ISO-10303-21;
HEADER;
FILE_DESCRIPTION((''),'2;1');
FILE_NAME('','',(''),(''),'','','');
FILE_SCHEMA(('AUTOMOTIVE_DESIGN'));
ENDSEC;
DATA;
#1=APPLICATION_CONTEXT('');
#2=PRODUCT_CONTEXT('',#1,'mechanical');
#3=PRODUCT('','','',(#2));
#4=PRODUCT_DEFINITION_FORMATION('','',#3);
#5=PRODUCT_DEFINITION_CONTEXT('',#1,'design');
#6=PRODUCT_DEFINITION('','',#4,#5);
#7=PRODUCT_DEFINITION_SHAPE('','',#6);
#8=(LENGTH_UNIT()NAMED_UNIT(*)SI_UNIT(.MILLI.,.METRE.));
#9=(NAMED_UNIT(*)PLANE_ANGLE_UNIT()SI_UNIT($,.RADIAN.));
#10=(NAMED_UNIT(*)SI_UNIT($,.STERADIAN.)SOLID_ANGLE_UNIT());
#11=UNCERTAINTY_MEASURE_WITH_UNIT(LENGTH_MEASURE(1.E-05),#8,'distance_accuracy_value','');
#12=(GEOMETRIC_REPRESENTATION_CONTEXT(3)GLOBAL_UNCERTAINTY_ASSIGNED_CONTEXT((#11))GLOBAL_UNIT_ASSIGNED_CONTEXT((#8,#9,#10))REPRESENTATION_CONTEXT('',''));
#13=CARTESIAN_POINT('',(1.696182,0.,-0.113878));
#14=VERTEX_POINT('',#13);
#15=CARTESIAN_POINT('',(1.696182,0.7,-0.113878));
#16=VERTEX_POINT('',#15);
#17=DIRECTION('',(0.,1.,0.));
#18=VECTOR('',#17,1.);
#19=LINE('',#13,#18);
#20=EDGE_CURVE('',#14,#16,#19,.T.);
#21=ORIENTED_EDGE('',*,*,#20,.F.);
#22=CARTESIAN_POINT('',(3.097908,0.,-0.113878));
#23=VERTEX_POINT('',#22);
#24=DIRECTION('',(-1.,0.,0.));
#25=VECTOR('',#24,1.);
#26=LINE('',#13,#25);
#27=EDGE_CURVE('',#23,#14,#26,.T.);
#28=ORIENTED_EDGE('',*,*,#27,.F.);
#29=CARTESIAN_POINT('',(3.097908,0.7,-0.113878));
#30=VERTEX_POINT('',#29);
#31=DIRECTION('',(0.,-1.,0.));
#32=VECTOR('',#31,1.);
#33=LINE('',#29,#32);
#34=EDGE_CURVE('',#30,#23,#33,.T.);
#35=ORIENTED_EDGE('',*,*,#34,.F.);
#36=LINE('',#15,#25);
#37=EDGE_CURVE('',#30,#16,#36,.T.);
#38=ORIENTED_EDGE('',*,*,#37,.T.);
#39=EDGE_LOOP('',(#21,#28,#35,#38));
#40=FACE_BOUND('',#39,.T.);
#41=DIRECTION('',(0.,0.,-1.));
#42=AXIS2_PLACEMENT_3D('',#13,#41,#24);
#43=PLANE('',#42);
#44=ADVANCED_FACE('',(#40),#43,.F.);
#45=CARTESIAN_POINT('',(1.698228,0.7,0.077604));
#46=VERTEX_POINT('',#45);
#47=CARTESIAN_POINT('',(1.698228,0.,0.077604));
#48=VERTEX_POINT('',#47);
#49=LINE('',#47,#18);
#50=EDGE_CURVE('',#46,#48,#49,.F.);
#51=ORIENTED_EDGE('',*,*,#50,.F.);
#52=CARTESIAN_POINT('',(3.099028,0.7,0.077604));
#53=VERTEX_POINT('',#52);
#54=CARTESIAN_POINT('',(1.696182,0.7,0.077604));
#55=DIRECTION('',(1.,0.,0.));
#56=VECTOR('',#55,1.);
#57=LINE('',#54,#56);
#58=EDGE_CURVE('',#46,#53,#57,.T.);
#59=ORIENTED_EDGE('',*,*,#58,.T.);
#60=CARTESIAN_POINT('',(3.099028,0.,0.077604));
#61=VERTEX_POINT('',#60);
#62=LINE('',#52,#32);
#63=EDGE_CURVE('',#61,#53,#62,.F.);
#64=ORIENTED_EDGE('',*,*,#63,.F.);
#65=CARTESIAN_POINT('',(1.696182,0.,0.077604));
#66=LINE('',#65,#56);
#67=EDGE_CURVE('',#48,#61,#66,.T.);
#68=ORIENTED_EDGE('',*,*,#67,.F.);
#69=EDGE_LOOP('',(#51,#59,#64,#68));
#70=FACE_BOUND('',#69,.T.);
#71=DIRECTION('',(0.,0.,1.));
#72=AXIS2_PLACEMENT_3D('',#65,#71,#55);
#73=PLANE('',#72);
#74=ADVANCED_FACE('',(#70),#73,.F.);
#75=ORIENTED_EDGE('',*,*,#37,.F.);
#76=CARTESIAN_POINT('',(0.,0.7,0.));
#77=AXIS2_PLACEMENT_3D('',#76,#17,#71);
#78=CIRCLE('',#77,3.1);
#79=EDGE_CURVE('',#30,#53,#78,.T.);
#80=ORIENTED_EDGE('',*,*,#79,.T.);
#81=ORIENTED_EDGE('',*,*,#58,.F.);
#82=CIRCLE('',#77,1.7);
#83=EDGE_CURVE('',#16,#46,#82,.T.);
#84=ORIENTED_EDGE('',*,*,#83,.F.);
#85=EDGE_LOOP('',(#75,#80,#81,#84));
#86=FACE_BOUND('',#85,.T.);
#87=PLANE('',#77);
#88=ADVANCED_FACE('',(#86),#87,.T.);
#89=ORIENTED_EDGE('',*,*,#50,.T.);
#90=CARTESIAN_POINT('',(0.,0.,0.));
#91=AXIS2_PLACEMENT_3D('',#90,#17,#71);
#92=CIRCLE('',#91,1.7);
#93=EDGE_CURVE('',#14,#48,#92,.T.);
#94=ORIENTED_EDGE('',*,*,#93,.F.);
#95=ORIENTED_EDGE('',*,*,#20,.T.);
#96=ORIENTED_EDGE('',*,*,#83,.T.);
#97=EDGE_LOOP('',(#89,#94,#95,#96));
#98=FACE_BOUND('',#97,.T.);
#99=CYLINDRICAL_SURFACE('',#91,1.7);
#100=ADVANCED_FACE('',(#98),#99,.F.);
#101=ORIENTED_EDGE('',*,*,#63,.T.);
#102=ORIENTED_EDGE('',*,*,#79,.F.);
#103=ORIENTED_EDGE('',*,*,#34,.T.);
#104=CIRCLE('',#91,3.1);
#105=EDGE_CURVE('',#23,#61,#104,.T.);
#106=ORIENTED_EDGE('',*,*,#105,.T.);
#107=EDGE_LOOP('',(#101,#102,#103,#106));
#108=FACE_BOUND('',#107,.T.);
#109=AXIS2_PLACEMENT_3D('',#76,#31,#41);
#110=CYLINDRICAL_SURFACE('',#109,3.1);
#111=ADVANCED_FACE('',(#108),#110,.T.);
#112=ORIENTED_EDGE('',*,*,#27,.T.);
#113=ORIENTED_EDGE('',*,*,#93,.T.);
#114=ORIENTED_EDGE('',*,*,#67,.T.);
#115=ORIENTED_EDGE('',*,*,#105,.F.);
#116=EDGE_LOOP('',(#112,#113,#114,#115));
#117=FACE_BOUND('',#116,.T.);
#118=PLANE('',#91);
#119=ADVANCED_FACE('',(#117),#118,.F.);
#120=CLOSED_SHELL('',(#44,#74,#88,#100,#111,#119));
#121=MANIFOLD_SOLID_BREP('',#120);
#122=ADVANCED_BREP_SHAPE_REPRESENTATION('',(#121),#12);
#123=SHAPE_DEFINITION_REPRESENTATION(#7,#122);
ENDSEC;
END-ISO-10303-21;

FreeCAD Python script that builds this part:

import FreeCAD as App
import Part
import Sketcher

doc = App.newDocument("Part")
params = doc.addObject("Spreadsheet::Sheet", "Params")
for row, (alias, value) in enumerate([
    ("sketch1_diameter", "6.2 mm"),
    ("pad1_length", "0.7 mm"),
    ("sketch2_diameter", "3.4 mm"),
], start=1):
    params.set(f"A{row}", alias)
    params.set(f"B{row}", "=" + value)
    params.setAlias(f"B{row}", alias)

body = doc.addObject("PartDesign::Body", "Body")

sketch1 = doc.addObject("Sketcher::SketchObject", "Sketch")
body.addObject(sketch1)
sketch1.AttachmentSupport = (doc.XZ_Plane, [""])
sketch1.MapMode = "FlatFace"
sketch1.addGeometry(Part.Circle(App.Vector(0, 0, 0), App.Vector(0, 0, 1), 3.1), False)
sketch1.addConstraint([
    Sketcher.Constraint("Coincident", 0, 3, -1, 1),
    Sketcher.Constraint("Diameter", 0, 6.2),
])
sketch1.setExpression("Constraints[1]", "Params.sketch1_diameter")
pad1 = doc.addObject("PartDesign::Pad", "Pad")
body.addObject(pad1)
pad1.Profile = sketch1
pad1.setExpression("Length", "Params.pad1_length")
pad1.Reversed = True

sketch2 = doc.addObject("Sketcher::SketchObject", "Sketch001")
body.addObject(sketch2)
sketch2.AttachmentSupport = (doc.XZ_Plane, [""])
sketch2.MapMode = "FlatFace"
sketch2.AttachmentOffset = App.Placement(App.Vector(0, 0, -0.7), App.Rotation())
sketch2.addGeometry(Part.Circle(App.Vector(0, 0, 0), App.Vector(0, 0, 1), 1.7), False)
sketch2.addConstraint([
    Sketcher.Constraint("Coincident", 0, 3, -1, 1),
    Sketcher.Constraint("Diameter", 0, 3.4),
])
sketch2.setExpression("Constraints[1]", "Params.sketch2_diameter")
pocket1 = doc.addObject("PartDesign::Pocket", "Pocket")
body.addObject(pocket1)
pocket1.Profile = sketch2
pocket1.Type = "ThroughAll"
pocket1.Reversed = True

sketch3 = doc.addObject("Sketcher::SketchObject", "Sketch002")
body.addObject(sketch3)
sketch3.AttachmentSupport = (doc.XZ_Plane, [""])
sketch3.MapMode = "FlatFace"
sketch3.AttachmentOffset = App.Placement(App.Vector(0, 0, -0.7), App.Rotation())
sketch3.addGeometry([
    Part.LineSegment(App.Vector(1.696182, -0.113878, 0), App.Vector(1.696182, 0.077604, 0)),
    Part.LineSegment(App.Vector(1.696182, 0.077604, 0), App.Vector(3.205661, 0.077604, 0)),
    Part.LineSegment(App.Vector(3.205661, 0.077604, 0), App.Vector(3.205661, -0.113878, 0)),
    Part.LineSegment(App.Vector(3.205661, -0.113878, 0), App.Vector(1.696182, -0.113878, 0)),
], False)
sketch3.addConstraint([
    Sketcher.Constraint("Coincident", 0, 2, 1, 1),
    Sketcher.Constraint("Coincident", 1, 2, 2, 1),
    Sketcher.Constraint("Coincident", 2, 2, 3, 1),
    Sketcher.Constraint("Coincident", 3, 2, 0, 1),
    Sketcher.Constraint("Vertical", 0),
    Sketcher.Constraint("Horizontal", 1),
    Sketcher.Constraint("Vertical", 2),
    Sketcher.Constraint("Horizontal", 3),
    Sketcher.Constraint("DistanceX", 1, 1, 1, 2, 1.50948),
    Sketcher.Constraint("DistanceY", 0, 1, 0, 2, 0.191482),
    Sketcher.Constraint("DistanceX", -1, 1, 0, 2, 1.696182),
    Sketcher.Constraint("DistanceY", -1, 1, 0, 2, 0.077604),
])
pocket2 = doc.addObject("PartDesign::Pocket", "Pocket001")
body.addObject(pocket2)
pocket2.Profile = sketch3
pocket2.Type = "ThroughAll"
pocket2.Reversed = True

doc.recompute()
